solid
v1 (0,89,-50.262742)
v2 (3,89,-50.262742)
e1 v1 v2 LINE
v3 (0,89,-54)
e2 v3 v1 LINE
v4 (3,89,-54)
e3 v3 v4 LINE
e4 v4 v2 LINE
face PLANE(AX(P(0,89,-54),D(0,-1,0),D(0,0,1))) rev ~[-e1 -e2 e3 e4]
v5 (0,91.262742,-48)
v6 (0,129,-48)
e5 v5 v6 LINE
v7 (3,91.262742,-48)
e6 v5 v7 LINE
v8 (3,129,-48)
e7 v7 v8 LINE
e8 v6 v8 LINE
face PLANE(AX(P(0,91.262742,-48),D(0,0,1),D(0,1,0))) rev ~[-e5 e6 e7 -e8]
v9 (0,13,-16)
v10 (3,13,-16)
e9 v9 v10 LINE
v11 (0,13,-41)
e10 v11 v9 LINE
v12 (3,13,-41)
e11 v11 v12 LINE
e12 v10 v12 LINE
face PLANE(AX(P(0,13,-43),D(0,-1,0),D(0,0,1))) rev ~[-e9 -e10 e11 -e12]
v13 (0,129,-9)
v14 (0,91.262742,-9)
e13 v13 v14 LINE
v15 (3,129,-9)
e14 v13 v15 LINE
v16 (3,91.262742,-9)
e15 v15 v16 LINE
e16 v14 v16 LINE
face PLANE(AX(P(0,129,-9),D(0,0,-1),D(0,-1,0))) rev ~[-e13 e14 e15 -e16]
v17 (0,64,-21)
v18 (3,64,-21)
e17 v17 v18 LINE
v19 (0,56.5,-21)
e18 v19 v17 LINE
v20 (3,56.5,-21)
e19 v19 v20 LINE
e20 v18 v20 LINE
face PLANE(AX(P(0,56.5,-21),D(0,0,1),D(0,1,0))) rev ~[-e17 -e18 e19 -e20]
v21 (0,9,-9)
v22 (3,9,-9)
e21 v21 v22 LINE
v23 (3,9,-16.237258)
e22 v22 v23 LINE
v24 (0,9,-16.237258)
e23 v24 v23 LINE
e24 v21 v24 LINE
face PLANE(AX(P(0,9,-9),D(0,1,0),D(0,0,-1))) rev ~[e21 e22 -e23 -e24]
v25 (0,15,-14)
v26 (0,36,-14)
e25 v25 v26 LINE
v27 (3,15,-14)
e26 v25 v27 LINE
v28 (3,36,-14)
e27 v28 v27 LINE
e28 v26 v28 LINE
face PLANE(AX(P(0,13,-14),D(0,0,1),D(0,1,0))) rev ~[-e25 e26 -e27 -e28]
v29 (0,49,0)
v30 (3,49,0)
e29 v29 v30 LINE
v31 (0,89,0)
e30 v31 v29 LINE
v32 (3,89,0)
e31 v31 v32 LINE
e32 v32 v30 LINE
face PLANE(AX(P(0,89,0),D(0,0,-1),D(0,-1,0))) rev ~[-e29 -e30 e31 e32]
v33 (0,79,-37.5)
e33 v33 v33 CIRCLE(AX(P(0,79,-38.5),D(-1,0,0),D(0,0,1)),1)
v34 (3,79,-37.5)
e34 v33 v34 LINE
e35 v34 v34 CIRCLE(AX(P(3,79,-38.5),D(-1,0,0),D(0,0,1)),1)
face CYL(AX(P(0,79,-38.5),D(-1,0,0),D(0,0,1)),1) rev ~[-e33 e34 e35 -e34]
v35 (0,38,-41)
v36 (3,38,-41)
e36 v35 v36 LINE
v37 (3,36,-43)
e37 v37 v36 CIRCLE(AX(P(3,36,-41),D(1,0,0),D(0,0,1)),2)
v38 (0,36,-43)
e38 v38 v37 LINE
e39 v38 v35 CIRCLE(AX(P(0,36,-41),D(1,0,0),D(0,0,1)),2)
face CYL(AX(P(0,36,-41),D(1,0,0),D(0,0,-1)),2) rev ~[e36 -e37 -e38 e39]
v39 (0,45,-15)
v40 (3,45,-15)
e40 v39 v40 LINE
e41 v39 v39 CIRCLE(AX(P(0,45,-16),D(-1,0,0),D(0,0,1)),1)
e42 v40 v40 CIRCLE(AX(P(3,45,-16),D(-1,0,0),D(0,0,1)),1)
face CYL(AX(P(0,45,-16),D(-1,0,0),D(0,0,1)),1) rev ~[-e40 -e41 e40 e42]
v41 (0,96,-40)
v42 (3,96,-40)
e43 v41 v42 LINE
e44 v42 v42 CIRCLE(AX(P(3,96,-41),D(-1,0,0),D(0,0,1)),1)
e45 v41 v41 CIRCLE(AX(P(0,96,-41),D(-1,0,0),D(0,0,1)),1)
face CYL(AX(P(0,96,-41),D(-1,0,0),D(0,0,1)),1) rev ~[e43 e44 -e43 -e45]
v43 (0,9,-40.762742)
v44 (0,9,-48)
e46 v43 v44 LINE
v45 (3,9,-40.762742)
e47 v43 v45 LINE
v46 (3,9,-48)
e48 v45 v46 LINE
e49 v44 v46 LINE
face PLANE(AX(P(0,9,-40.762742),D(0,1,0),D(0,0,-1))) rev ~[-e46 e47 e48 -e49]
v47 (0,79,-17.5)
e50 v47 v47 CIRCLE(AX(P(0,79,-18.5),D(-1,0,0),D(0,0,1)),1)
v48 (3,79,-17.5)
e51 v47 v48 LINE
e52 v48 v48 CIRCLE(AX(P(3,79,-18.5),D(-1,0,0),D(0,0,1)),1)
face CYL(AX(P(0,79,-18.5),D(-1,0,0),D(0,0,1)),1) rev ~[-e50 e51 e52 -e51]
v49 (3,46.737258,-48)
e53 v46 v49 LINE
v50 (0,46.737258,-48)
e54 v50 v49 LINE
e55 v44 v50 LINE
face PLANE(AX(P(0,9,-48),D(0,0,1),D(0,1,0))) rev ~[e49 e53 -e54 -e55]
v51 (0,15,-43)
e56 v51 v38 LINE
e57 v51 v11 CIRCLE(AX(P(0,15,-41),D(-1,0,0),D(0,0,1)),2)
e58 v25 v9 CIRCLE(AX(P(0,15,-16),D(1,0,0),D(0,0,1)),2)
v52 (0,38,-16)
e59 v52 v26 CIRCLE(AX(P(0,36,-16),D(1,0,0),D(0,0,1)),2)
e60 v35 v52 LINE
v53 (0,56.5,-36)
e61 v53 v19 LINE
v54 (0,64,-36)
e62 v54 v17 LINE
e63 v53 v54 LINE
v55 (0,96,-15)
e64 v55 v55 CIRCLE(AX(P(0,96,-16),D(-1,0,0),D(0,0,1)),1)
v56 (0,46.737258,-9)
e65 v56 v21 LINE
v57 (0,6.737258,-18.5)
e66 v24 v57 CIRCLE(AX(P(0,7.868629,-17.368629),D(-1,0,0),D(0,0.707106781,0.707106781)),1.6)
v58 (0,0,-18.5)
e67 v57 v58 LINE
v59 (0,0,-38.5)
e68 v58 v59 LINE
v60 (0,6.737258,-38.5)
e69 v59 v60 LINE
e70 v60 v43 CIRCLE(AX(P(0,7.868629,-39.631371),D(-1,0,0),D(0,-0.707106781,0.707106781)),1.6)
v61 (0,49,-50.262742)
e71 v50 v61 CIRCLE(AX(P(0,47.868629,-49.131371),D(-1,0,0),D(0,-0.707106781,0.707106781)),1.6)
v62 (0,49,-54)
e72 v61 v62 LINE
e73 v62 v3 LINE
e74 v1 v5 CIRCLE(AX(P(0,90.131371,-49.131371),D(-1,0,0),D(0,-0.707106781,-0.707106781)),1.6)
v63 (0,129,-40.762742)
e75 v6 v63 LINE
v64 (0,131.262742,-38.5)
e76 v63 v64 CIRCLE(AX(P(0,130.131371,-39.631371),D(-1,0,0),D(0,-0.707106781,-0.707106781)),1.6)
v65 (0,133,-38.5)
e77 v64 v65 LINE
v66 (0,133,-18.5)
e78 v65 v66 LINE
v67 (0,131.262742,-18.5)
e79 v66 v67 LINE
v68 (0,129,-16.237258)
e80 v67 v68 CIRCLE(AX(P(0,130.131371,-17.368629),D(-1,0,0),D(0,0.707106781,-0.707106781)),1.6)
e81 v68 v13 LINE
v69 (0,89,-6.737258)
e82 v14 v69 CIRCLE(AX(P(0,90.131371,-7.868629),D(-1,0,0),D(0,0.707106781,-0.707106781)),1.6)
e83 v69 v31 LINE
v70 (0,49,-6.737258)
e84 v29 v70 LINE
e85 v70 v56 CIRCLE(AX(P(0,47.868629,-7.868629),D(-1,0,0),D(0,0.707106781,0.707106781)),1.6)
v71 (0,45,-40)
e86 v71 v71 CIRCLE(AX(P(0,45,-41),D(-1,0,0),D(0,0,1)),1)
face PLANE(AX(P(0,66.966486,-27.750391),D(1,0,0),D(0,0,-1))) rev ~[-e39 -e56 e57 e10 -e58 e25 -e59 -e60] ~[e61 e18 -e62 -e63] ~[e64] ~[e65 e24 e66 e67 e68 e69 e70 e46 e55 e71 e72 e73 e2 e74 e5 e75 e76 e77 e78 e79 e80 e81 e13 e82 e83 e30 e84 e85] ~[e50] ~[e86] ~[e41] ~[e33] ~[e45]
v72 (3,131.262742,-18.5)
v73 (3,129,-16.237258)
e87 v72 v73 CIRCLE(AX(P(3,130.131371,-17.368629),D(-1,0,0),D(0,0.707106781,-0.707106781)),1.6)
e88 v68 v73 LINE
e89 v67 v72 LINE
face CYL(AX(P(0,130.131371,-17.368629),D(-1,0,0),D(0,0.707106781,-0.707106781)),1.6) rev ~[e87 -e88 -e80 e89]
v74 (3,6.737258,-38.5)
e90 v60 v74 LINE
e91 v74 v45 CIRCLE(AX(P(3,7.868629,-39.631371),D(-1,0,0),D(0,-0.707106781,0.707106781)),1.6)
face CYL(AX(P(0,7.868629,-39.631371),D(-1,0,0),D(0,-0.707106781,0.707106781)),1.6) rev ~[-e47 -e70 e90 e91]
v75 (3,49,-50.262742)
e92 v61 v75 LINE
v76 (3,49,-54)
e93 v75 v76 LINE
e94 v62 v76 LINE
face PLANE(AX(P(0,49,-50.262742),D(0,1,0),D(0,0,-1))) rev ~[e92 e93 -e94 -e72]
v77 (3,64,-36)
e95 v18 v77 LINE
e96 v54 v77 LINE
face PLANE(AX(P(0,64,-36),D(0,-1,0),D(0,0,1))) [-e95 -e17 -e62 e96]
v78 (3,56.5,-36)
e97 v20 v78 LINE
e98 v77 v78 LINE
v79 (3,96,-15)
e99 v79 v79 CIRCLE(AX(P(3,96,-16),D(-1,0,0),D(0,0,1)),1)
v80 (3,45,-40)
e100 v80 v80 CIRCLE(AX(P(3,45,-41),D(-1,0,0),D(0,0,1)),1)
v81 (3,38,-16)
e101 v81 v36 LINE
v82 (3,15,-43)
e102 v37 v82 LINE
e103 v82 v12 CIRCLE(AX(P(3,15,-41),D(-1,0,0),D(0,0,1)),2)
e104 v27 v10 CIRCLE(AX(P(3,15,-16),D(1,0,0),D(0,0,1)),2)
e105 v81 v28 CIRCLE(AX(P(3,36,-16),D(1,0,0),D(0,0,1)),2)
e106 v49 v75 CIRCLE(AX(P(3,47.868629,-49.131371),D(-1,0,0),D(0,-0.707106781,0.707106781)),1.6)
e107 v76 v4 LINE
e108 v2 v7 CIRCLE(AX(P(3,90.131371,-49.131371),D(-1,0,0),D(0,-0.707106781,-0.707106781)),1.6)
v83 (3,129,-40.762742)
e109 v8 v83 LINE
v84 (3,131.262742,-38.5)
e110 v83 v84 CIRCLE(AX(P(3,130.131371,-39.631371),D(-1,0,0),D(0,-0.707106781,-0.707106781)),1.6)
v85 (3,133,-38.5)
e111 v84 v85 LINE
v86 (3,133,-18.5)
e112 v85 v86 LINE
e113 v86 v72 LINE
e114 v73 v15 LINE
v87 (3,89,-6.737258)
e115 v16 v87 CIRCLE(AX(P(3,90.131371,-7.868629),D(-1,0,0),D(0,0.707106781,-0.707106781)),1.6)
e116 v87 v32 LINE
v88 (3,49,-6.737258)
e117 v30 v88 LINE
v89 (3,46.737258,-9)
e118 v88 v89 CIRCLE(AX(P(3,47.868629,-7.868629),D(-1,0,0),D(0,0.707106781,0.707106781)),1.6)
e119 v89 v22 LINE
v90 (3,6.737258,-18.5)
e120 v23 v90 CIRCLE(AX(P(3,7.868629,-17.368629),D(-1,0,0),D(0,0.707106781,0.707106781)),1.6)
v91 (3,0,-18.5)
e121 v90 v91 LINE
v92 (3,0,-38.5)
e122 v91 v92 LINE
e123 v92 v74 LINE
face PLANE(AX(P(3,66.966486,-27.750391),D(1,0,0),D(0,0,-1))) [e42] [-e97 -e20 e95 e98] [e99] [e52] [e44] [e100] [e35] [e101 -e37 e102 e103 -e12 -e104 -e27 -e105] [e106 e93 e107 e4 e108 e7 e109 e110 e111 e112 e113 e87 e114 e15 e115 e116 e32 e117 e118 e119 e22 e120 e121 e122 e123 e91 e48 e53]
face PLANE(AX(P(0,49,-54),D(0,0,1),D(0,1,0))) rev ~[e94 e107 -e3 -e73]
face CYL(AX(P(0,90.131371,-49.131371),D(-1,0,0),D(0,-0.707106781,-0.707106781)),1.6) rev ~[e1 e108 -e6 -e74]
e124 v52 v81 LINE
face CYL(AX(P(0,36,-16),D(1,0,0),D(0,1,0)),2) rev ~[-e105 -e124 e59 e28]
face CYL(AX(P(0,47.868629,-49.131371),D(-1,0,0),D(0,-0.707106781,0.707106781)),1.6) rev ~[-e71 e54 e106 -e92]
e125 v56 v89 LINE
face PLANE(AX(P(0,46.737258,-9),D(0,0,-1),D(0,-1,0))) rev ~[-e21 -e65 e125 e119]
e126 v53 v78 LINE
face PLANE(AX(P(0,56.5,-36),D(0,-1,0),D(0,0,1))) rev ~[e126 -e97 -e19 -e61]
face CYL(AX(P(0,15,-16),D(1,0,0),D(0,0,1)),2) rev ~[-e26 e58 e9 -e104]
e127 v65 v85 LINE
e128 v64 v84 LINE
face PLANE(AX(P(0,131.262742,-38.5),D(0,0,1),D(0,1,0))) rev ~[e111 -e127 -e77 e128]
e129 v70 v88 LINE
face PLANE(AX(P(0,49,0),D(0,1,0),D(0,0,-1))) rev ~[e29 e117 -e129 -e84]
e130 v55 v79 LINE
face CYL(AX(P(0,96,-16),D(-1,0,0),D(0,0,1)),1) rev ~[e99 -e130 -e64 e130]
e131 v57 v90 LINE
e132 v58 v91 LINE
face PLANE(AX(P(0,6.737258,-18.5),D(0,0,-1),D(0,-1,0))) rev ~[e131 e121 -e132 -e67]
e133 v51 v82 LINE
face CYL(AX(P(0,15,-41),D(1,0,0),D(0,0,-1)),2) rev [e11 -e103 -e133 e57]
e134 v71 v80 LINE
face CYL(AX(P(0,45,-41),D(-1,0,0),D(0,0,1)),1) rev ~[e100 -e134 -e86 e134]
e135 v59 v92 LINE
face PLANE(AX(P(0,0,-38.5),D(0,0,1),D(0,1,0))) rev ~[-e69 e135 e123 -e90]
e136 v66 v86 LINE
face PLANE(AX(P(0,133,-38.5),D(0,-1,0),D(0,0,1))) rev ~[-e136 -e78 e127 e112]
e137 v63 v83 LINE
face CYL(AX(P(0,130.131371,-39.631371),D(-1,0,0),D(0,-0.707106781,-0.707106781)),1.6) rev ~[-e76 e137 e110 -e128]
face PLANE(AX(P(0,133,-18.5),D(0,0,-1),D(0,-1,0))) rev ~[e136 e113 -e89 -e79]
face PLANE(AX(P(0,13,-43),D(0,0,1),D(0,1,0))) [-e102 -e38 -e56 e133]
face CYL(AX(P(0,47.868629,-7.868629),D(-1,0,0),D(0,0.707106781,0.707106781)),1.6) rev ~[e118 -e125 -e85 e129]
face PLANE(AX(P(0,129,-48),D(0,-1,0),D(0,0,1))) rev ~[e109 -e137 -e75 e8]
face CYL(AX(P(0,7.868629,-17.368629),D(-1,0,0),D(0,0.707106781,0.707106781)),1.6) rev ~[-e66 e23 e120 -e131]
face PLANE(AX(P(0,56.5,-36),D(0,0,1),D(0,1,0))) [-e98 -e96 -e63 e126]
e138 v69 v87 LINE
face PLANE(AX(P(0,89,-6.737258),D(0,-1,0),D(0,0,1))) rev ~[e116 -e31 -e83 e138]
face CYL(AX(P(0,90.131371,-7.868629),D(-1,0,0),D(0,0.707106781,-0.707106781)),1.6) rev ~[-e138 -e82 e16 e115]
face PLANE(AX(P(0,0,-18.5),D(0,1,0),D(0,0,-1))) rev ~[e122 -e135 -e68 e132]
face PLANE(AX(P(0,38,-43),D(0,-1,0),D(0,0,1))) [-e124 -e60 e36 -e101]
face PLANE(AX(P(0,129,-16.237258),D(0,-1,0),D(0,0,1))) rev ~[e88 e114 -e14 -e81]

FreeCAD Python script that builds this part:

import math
import FreeCAD as App
import Part
import Sketcher
from FreeCAD import Vector


def edges_at(feature, points):
    """Names of the edges that pass closest to the given points."""
    edges = feature.Shape.Edges
    near = lambda p: min(range(len(edges)), key=lambda i: edges[i].distToShape(Part.Vertex(*p))[0])
    return sorted({f"Edge{near(p) + 1}" for p in points})


def add_polygon(sketch, points):
    """Adds a closed chain of lines whose ends are joined by coincident constraints."""
    first, n = sketch.GeometryCount, len(points)
    for a, b in zip(points, points[1:] + points[:1]):
        sketch.addGeometry(Part.LineSegment(App.Vector(*a, 0), App.Vector(*b, 0)), False)
    for i in range(n):
        sketch.addConstraint(Sketcher.Constraint("Coincident", first + i, 2, first + (i + 1) % n, 1))

doc = App.newDocument("Part")
body = doc.addObject("PartDesign::Body", "Body")

# Sketch on YZ plane
sketch1 = doc.addObject("Sketcher::SketchObject", "Sketch")
body.addObject(sketch1)
sketch1.AttachmentSupport = (doc.YZ_Plane, [""])
sketch1.MapMode = "FlatFace"
sketch1.addGeometry([
    Part.LineSegment(Vector(6.7, -18.5, 0), Vector(0, -18.5, 0)),  # 0
    Part.LineSegment(Vector(0, -18.5, 0), Vector(0, -38.5, 0)),  # 1
    Part.LineSegment(Vector(0, -38.5, 0), Vector(6.7, -38.5, 0)),  # 2
    Part.ArcOfCircle(Part.Circle(Vector(7.9, -39.6, 0), Vector(0, 0, 1), 1.6), math.radians(-45), math.radians(135)),  # 3
    Part.LineSegment(Vector(9, -40.8, 0), Vector(9, -48, 0)),  # 4
    Part.LineSegment(Vector(9, -48, 0), Vector(46.7, -48, 0)),  # 5
    Part.ArcOfCircle(Part.Circle(Vector(47.9, -49.1, 0), Vector(0, 0, 1), 1.6), math.radians(-45), math.radians(135)),  # 6
    Part.LineSegment(Vector(49, -50.3, 0), Vector(49, -54, 0)),  # 7
    Part.LineSegment(Vector(49, -54, 0), Vector(89, -54, 0)),  # 8
    Part.LineSegment(Vector(89, -54, 0), Vector(89, -50.3, 0)),  # 9
    Part.ArcOfCircle(Part.Circle(Vector(90.1, -49.1, 0), Vector(0, 0, 1), 1.6), math.radians(45), math.radians(225)),  # 10
    Part.LineSegment(Vector(91.3, -48, 0), Vector(129, -48, 0)),  # 11
    Part.LineSegment(Vector(129, -48, 0), Vector(129, -40.8, 0)),  # 12
    Part.ArcOfCircle(Part.Circle(Vector(130.1, -39.6, 0), Vector(0, 0, 1), 1.6), math.radians(45), math.radians(225)),  # 13
    Part.LineSegment(Vector(131.3, -38.5, 0), Vector(133, -38.5, 0)),  # 14
    Part.LineSegment(Vector(133, -38.5, 0), Vector(133, -18.5, 0)),  # 15
    Part.LineSegment(Vector(133, -18.5, 0), Vector(131.3, -18.5, 0)),  # 16
    Part.ArcOfCircle(Part.Circle(Vector(130.1, -17.4, 0), Vector(0, 0, 1), 1.6), math.radians(135), math.radians(315)),  # 17
    Part.LineSegment(Vector(129, -16.2, 0), Vector(129, -9, 0)),  # 18
    Part.LineSegment(Vector(129, -9, 0), Vector(91.3, -9, 0)),  # 19
    Part.ArcOfCircle(Part.Circle(Vector(90.1, -7.9, 0), Vector(0, 0, 1), 1.6), math.radians(135), math.radians(315)),  # 20
    Part.LineSegment(Vector(89, -6.7, 0), Vector(89, 0, 0)),  # 21
    Part.LineSegment(Vector(89, 0, 0), Vector(49, 0, 0)),  # 22
    Part.LineSegment(Vector(49, 0, 0), Vector(49, -6.7, 0)),  # 23
    Part.ArcOfCircle(Part.Circle(Vector(47.9, -7.9, 0), Vector(0, 0, 1), 1.6), math.radians(-135), math.radians(45)),  # 24
    Part.LineSegment(Vector(46.7, -9, 0), Vector(9, -9, 0)),  # 25
    Part.LineSegment(Vector(9, -9, 0), Vector(9, -16.2, 0)),  # 26
    Part.ArcOfCircle(Part.Circle(Vector(7.9, -17.4, 0), Vector(0, 0, 1), 1.6), math.radians(-135), math.radians(45)),  # 27
], False)
sketch1.addConstraint([
    Sketcher.Constraint("Coincident", 0, 2, 1, 1),
    Sketcher.Constraint("Coincident", 1, 2, 2, 1),
    Sketcher.Constraint("Coincident", 2, 2, 3, 2),
    Sketcher.Constraint("Coincident", 3, 1, 4, 1),
    Sketcher.Constraint("Coincident", 4, 2, 5, 1),
    Sketcher.Constraint("Coincident", 5, 2, 6, 2),
    Sketcher.Constraint("Coincident", 6, 1, 7, 1),
    Sketcher.Constraint("Coincident", 7, 2, 8, 1),
    Sketcher.Constraint("Coincident", 8, 2, 9, 1),
    Sketcher.Constraint("Coincident", 9, 2, 10, 2),
    Sketcher.Constraint("Coincident", 10, 1, 11, 1),
    Sketcher.Constraint("Coincident", 11, 2, 12, 1),
    Sketcher.Constraint("Coincident", 12, 2, 13, 2),
    Sketcher.Constraint("Coincident", 13, 1, 14, 1),
    Sketcher.Constraint("Coincident", 14, 2, 15, 1),
    Sketcher.Constraint("Coincident", 15, 2, 16, 1),
    Sketcher.Constraint("Coincident", 16, 2, 17, 2),
    Sketcher.Constraint("Coincident", 17, 1, 18, 1),
    Sketcher.Constraint("Coincident", 18, 2, 19, 1),
    Sketcher.Constraint("Coincident", 19, 2, 20, 2),
    Sketcher.Constraint("Coincident", 20, 1, 21, 1),
    Sketcher.Constraint("Coincident", 21, 2, 22, 1),
    Sketcher.Constraint("Coincident", 22, 2, 23, 1),
    Sketcher.Constraint("Coincident", 23, 2, 24, 2),
    Sketcher.Constraint("Coincident", 24, 1, 25, 1),
    Sketcher.Constraint("Coincident", 25, 2, 26, 1),
    Sketcher.Constraint("Coincident", 26, 2, 27, 2),
    Sketcher.Constraint("Coincident", 27, 1, 0, 1),
    Sketcher.Constraint("Horizontal", 0),
    Sketcher.Constraint("Vertical", 1),
    Sketcher.Constraint("Horizontal", 2),
    Sketcher.Constraint("Vertical", 4),
    Sketcher.Constraint("Horizontal", 5),
    Sketcher.Constraint("Vertical", 7),
    Sketcher.Constraint("Horizontal", 8),
    Sketcher.Constraint("Vertical", 9),
    Sketcher.Constraint("Horizontal", 11),
    Sketcher.Constraint("Vertical", 12),
    Sketcher.Constraint("Horizontal", 14),
    Sketcher.Constraint("Vertical", 15),
    Sketcher.Constraint("Horizontal", 16),
    Sketcher.Constraint("Vertical", 18),
    Sketcher.Constraint("Horizontal", 19),
    Sketcher.Constraint("Vertical", 21),
    Sketcher.Constraint("Horizontal", 22),
    Sketcher.Constraint("Vertical", 23),
    Sketcher.Constraint("Horizontal", 25),
    Sketcher.Constraint("Vertical", 26),
    Sketcher.Constraint("Equal", 3, 6),
    Sketcher.Constraint("Equal", 6, 10),
    Sketcher.Constraint("Equal", 10, 13),
    Sketcher.Constraint("Equal", 13, 17),
    Sketcher.Constraint("Equal", 17, 20),
    Sketcher.Constraint("Equal", 20, 24),
    Sketcher.Constraint("Equal", 24, 27),
    Sketcher.Constraint("PointOnObject", 0, 2, -2),
    Sketcher.Constraint("PointOnObject", 21, 2, -1),
    Sketcher.Constraint("Horizontal", 6, 3, 10, 3),
    Sketcher.Constraint("Horizontal", 3, 3, 13, 3),
    Sketcher.Constraint("Horizontal", 20, 3, 24, 3),
    Sketcher.Constraint("Horizontal", 17, 3, 27, 3),
    Sketcher.Constraint("Horizontal", 6, 1, 9, 2),
    Sketcher.Constraint("Horizontal", 5, 2, 10, 1),
    Sketcher.Constraint("Horizontal", 3, 1, 12, 2),
    Sketcher.Constraint("Horizontal", 2, 2, 13, 1),
    Sketcher.Constraint("Horizontal", 0, 2, 15, 2),
    Sketcher.Constraint("Horizontal", 20, 1, 23, 2),
    Sketcher.Constraint("Horizontal", 19, 2, 24, 1),
    Sketcher.Constraint("Horizontal", 17, 1, 26, 2),
    Sketcher.Constraint("Vertical", 13, 3, 17, 3),
    Sketcher.Constraint("Vertical", 10, 3, 20, 3),
    Sketcher.Constraint("Vertical", 6, 3, 24, 3),
    Sketcher.Constraint("Vertical", 3, 3, 27, 3),
    Sketcher.Constraint("Vertical", 13, 1, 16, 2),
    Sketcher.Constraint("Vertical", 12, 2, 17, 1),
    Sketcher.Constraint("Vertical", 10, 1, 19, 2),
    Sketcher.Constraint("Vertical", 9, 2, 20, 1),
    Sketcher.Constraint("Equal", 5, 11),
    Sketcher.Constraint("Equal", 12, 18),
    Sketcher.Constraint("Equal", 2, 21),
    Sketcher.Constraint("Radius", 3, 1.6),
    Sketcher.Constraint("DistanceX", 8, 1, 8, 2, 40.0),
    Sketcher.Constraint("DistanceY", 1, 2, 1, 1, 20.0),
    Sketcher.Constraint("DistanceX", -1, 1, 3, 1, 9.0),
    Sketcher.Constraint("DistanceY", 4, 2, -1, 1, 48.0),
    Sketcher.Constraint("DistanceX", -1, 1, 6, 1, 49.0),
    Sketcher.Constraint("DistanceY", 7, 2, -1, 1, 54.0),
    Sketcher.Constraint("DistanceX", -1, 1, 14, 2, 133.0),
    Sketcher.Constraint("DistanceY", 18, 2, -1, 1, 9.0),
    Sketcher.Constraint("DistanceX", 3, 3, 6, 3, 40.0),
    Sketcher.Constraint("DistanceX", 10, 1, 13, 1, 40.0),
    Sketcher.Constraint("DistanceX", -1, 1, 3, 3, 7.868629),
])
pad1 = doc.addObject("PartDesign::Pad", "Pad")
body.addObject(pad1)
pad1.Profile = sketch1
pad1.Length = 3

# Sketch on YZ plane
sketch2 = doc.addObject("Sketcher::SketchObject", "Sketch001")
body.addObject(sketch2)
sketch2.AttachmentSupport = (doc.YZ_Plane, [""])
sketch2.MapMode = "FlatFace"
sketch2.addGeometry(Part.Circle(Vector(79, -38.5, 0), Vector(0, 0, 1), 1), False)  # 0
sketch2.addGeometry(Part.Circle(Vector(79, -18.5, 0), Vector(0, 0, 1), 1), False)  # 1
add_polygon(sketch2, [(38, -43), (13, -43), (13, -14), (38, -14)])  # lines 2-5
sketch2.addConstraint([
    Sketcher.Constraint("Horizontal", 2),
    Sketcher.Constraint("Vertical", 3),
    Sketcher.Constraint("Horizontal", 4),
    Sketcher.Constraint("Vertical", 5),
    Sketcher.Constraint("Equal", 0, 1),
    Sketcher.Constraint("Vertical", 0, 3, 1, 3),
    Sketcher.Constraint("Diameter", 0, 2.0),
    Sketcher.Constraint("DistanceX", 2, 2, 2, 1, 25.0),
    Sketcher.Constraint("DistanceY", 3, 1, 3, 2, 29.0),
    Sketcher.Constraint("DistanceX", -1, 1, 0, 3, 79.0),
    Sketcher.Constraint("DistanceX", -1, 1, 2, 2, 13.0),
    Sketcher.Constraint("DistanceY", 2, 2, -1, 1, 43.0),
    Sketcher.Constraint("DistanceY", 0, 3, 1, 3, 20.0),
    Sketcher.Constraint("DistanceY", 0, 3, -1, 1, 38.5),
])
pocket1 = doc.addObject("PartDesign::Pocket", "Pocket")
body.addObject(pocket1)
pocket1.Profile = sketch2
pocket1.Type = "ThroughAll"
pocket1.Reversed = True
doc.recompute()

fillet = doc.addObject("PartDesign::Fillet", "Fillet")
body.addObject(fillet)
fillet.Base = (pocket1, edges_at(pocket1, [
    (1.5, 38, -14),
    (1.5, 13, -14),
    (1.5, 13, -43),
    (1.5, 38, -43),
]))
fillet.Radius = 2

# Sketch on YZ plane
sketch3 = doc.addObject("Sketcher::SketchObject", "Sketch002")
body.addObject(sketch3)
sketch3.AttachmentSupport = (doc.YZ_Plane, [""])
sketch3.MapMode = "FlatFace"
add_polygon(sketch3, [(64, -36), (56, -36), (56, -21), (64, -21)])  # lines 0-3
sketch3.addConstraint([
    Sketcher.Constraint("Horizontal", 0),
    Sketcher.Constraint("Vertical", 1),
    Sketcher.Constraint("Horizontal", 2),
    Sketcher.Constraint("Vertical", 3),
    Sketcher.Constraint("DistanceY", 1, 1, 1, 2, 15.0),
    Sketcher.Constraint("DistanceX", 0, 2, 0, 1, 7.5),
    Sketcher.Constraint("DistanceY", 0, 2, -1, 1, 36.0),
    Sketcher.Constraint("DistanceX", -1, 1, 2, 2, 64.0),
])
pocket2 = doc.addObject("PartDesign::Pocket", "Pocket001")
body.addObject(pocket2)
pocket2.Profile = sketch3
pocket2.Type = "ThroughAll"
pocket2.Reversed = True

# Sketch on YZ plane
sketch4 = doc.addObject("Sketcher::SketchObject", "Sketch003")
body.addObject(sketch4)
sketch4.AttachmentSupport = (doc.YZ_Plane, [""])
sketch4.MapMode = "FlatFace"
sketch4.addGeometry([
    Part.Circle(Vector(96, -41, 0), Vector(0, 0, 1), 1),
    Part.Circle(Vector(96, -16, 0), Vector(0, 0, 1), 1),
    Part.Circle(Vector(45, -41, 0), Vector(0, 0, 1), 1),
    Part.Circle(Vector(45, -16, 0), Vector(0, 0, 1), 1),
], False)
sketch4.addConstraint([
    Sketcher.Constraint("Equal", 0, 1),
    Sketcher.Constraint("Equal", 1, 2),
    Sketcher.Constraint("Equal", 2, 3),
    Sketcher.Constraint("Horizontal", 0, 3, 2, 3),
    Sketcher.Constraint("Horizontal", 1, 3, 3, 3),
    Sketcher.Constraint("Vertical", 0, 3, 1, 3),
    Sketcher.Constraint("Vertical", 2, 3, 3, 3),
    Sketcher.Constraint("Diameter", 0, 2.0),
    Sketcher.Constraint("DistanceX", -1, 1, 0, 3, 96.0),
    Sketcher.Constraint("DistanceY", 0, 3, -1, 1, 41.0),
    Sketcher.Constraint("DistanceY", 1, 3, -1, 1, 16.0),
    Sketcher.Constraint("DistanceX", -1, 1, 2, 3, 45.0),
])
pocket3 = doc.addObject("PartDesign::Pocket", "Pocket002")
body.addObject(pocket3)
pocket3.Profile = sketch4
pocket3.Type = "ThroughAll"
pocket3.Reversed = True

doc.recompute()
